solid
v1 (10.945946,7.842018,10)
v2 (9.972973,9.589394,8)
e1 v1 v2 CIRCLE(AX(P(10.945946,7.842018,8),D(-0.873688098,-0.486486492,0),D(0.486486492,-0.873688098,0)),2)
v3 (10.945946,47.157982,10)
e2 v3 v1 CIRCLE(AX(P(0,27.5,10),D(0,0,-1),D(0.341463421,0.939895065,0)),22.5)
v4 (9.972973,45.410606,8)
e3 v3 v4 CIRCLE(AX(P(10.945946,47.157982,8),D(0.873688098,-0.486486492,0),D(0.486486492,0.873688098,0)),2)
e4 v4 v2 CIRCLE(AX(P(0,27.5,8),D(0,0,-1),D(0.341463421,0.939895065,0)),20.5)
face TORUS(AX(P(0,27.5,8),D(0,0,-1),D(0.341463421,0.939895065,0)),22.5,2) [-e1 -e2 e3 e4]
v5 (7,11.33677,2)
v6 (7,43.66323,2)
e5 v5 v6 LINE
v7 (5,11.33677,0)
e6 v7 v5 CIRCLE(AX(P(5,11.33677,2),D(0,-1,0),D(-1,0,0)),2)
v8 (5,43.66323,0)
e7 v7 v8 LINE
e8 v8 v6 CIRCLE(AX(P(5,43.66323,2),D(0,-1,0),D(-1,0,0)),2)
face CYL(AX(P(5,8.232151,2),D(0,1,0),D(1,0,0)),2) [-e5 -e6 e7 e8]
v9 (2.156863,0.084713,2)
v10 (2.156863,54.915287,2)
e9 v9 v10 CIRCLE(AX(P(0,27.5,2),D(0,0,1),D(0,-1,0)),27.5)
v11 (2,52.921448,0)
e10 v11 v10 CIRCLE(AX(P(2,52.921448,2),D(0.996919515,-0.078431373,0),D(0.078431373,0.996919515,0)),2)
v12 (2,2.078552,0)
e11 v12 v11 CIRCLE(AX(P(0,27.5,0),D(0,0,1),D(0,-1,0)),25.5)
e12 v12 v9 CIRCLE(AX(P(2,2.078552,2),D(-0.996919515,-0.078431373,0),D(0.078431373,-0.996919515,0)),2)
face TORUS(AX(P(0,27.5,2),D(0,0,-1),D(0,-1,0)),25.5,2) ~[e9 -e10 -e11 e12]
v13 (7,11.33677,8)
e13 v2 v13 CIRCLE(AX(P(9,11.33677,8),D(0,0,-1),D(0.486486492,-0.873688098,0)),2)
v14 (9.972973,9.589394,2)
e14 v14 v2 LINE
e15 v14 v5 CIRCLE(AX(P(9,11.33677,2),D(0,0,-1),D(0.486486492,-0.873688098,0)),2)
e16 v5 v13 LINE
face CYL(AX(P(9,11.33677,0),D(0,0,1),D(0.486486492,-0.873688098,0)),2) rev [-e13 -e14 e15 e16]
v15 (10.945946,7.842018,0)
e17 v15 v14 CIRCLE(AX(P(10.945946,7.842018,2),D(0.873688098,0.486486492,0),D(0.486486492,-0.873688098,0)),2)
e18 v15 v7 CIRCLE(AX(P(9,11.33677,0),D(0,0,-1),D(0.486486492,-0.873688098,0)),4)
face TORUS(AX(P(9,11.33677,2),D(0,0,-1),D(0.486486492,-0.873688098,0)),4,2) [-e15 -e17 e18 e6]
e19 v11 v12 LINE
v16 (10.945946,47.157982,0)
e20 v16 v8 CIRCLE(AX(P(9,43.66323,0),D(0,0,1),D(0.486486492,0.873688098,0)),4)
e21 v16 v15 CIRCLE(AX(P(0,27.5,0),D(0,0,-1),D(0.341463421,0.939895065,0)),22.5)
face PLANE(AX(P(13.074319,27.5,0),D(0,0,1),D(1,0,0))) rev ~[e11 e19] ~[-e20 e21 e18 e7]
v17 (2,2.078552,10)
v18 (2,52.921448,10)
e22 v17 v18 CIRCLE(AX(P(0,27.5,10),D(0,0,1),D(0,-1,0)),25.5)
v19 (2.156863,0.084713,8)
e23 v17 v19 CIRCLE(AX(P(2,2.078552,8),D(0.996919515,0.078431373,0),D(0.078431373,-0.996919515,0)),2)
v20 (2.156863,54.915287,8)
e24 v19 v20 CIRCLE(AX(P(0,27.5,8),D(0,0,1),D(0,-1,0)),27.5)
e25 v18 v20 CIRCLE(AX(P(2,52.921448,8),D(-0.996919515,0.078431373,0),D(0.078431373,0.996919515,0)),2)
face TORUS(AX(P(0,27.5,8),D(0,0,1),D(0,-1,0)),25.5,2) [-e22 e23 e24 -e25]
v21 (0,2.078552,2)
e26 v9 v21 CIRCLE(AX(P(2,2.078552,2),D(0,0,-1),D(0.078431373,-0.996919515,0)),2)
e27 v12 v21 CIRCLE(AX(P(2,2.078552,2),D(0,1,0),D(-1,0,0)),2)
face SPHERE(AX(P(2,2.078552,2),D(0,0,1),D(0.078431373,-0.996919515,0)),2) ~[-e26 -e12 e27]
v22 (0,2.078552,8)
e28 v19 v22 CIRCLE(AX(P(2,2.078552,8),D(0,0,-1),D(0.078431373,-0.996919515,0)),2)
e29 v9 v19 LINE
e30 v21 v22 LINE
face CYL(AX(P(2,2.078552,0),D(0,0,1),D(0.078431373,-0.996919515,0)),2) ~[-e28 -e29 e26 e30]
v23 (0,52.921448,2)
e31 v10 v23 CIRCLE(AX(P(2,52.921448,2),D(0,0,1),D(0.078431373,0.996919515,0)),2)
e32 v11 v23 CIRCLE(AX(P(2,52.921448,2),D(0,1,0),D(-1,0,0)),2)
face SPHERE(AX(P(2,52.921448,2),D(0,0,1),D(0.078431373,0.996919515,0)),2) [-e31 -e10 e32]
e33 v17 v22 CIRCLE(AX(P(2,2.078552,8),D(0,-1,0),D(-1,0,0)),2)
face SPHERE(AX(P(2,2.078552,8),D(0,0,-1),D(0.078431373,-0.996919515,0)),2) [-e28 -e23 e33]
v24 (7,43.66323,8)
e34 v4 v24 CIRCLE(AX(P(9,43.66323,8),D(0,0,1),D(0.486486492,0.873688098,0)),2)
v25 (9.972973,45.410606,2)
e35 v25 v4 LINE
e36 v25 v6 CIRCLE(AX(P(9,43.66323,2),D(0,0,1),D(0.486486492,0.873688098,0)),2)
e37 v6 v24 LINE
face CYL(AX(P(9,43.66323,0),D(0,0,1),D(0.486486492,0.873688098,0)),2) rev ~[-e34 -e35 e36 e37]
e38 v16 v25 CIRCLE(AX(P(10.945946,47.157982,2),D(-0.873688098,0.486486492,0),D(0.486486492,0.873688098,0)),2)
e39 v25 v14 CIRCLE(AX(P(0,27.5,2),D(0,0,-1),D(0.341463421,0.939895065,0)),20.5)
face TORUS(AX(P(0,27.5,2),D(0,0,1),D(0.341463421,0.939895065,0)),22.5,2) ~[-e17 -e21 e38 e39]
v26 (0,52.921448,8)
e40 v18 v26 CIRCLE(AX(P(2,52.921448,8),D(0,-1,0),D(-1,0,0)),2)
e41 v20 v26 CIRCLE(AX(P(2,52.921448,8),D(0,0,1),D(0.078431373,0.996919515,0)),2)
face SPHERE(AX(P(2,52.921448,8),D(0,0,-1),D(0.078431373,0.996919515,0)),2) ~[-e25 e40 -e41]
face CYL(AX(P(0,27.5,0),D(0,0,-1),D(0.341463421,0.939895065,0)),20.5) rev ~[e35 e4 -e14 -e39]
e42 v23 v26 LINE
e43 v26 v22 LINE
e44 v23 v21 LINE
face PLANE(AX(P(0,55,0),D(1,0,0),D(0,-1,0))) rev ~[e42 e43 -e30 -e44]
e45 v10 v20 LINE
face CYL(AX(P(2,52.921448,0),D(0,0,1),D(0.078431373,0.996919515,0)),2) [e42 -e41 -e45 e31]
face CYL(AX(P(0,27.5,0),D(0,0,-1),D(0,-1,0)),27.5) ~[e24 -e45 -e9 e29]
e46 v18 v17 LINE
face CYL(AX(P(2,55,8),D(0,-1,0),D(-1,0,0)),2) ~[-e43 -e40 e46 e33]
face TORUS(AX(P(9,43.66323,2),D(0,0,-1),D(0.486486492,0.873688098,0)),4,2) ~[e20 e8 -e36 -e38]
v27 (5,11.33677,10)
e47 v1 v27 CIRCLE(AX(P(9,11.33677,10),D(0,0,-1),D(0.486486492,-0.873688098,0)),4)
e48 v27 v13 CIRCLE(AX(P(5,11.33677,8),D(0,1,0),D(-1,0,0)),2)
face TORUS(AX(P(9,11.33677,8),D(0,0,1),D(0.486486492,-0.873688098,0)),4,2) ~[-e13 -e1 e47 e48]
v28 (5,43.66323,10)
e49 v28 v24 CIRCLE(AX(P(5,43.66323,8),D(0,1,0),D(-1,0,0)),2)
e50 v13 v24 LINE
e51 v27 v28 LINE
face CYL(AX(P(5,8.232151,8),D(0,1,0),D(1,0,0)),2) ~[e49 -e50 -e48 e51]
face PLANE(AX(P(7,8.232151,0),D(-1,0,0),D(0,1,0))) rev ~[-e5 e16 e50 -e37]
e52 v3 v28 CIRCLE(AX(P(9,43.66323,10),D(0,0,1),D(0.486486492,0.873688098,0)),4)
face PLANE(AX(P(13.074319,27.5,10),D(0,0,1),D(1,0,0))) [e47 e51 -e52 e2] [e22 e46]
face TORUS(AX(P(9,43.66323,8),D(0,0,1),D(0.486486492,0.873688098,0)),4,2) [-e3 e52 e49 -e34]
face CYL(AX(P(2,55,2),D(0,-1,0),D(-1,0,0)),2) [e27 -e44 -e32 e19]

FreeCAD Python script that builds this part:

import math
import FreeCAD as App
import Part
import Sketcher

V = App.Vector

doc = App.newDocument("Part")
params = doc.addObject("Spreadsheet::Sheet", "Params")
for row, (alias, value) in enumerate([
    ("sketch1_radius", "27.5 mm"),
    ("sketch1_radius2", "20.5 mm"),
    ("pad1_length", "10 mm"),
    ("fillet_radius", "2 mm"),
], start=1):
    params.set(f"A{row}", alias)
    params.set(f"B{row}", "=" + value)
    params.setAlias(f"B{row}", alias)

body = doc.addObject("PartDesign::Body", "Body")

sketch1 = body.newObject("Sketcher::SketchObject", "Sketch")
sketch1.AttachmentSupport = (doc.getObject("XY_Plane"), [""])
sketch1.MapMode = "FlatFace"
sketch1.addGeometry(Part.ArcOfCircle(Part.Circle(V(0, 28, 0), V(0, 0, 1), 28), math.radians(-90), math.radians(90)), False)
sketch1.addGeometry(Part.LineSegment(V(0, 55, 0), V(0, 0, 0)), False)
sketch1.addGeometry(Part.ArcOfCircle(Part.Circle(V(0, 28, 0), V(0, 0, 1), 21), math.radians(-70), math.radians(70)), False)
sketch1.addGeometry(Part.LineSegment(V(7, 8, 0), V(7, 47, 0)), False)
sketch1.addConstraint(Sketcher.Constraint("Coincident", 0, 1, 1, 2))
sketch1.addConstraint(Sketcher.Constraint("Coincident", 1, 1, 0, 2))
sketch1.addConstraint(Sketcher.Constraint("Coincident", 2, 1, 3, 1))
sketch1.addConstraint(Sketcher.Constraint("Coincident", 3, 2, 2, 2))
sketch1.addConstraint(Sketcher.Constraint("Vertical", 1))
sketch1.addConstraint(Sketcher.Constraint("Vertical", 3))
sketch1.addConstraint(Sketcher.Constraint("Coincident", 0, 1, -1, 1))
sketch1.addConstraint(Sketcher.Constraint("Coincident", 2, 3, 0, 3))
sketch1.addConstraint(Sketcher.Constraint("PointOnObject", 0, 3, -2))
sketch1.addConstraint(Sketcher.Constraint("Radius", 0, 27.5))
sketch1.addConstraint(Sketcher.Constraint("Radius", 2, 20.5))
sketch1.addConstraint(Sketcher.Constraint("DistanceX", -1, 1, 2, 1, 7.0))
sketch1.setExpression("Constraints[9]", "Params.sketch1_radius")
sketch1.setExpression("Constraints[10]", "Params.sketch1_radius2")
pad1 = body.newObject("PartDesign::Pad", "Pad")
pad1.Profile = sketch1
pad1.setExpression("Length", "Params.pad1_length")
doc.recompute()

fillet = body.newObject("PartDesign::Fillet", "Fillet")
fillet.Base = (pad1, ["Edge1"])
fillet.UseAllEdges = True
fillet.setExpression("Radius", "Params.fillet_radius")

doc.recompute()
